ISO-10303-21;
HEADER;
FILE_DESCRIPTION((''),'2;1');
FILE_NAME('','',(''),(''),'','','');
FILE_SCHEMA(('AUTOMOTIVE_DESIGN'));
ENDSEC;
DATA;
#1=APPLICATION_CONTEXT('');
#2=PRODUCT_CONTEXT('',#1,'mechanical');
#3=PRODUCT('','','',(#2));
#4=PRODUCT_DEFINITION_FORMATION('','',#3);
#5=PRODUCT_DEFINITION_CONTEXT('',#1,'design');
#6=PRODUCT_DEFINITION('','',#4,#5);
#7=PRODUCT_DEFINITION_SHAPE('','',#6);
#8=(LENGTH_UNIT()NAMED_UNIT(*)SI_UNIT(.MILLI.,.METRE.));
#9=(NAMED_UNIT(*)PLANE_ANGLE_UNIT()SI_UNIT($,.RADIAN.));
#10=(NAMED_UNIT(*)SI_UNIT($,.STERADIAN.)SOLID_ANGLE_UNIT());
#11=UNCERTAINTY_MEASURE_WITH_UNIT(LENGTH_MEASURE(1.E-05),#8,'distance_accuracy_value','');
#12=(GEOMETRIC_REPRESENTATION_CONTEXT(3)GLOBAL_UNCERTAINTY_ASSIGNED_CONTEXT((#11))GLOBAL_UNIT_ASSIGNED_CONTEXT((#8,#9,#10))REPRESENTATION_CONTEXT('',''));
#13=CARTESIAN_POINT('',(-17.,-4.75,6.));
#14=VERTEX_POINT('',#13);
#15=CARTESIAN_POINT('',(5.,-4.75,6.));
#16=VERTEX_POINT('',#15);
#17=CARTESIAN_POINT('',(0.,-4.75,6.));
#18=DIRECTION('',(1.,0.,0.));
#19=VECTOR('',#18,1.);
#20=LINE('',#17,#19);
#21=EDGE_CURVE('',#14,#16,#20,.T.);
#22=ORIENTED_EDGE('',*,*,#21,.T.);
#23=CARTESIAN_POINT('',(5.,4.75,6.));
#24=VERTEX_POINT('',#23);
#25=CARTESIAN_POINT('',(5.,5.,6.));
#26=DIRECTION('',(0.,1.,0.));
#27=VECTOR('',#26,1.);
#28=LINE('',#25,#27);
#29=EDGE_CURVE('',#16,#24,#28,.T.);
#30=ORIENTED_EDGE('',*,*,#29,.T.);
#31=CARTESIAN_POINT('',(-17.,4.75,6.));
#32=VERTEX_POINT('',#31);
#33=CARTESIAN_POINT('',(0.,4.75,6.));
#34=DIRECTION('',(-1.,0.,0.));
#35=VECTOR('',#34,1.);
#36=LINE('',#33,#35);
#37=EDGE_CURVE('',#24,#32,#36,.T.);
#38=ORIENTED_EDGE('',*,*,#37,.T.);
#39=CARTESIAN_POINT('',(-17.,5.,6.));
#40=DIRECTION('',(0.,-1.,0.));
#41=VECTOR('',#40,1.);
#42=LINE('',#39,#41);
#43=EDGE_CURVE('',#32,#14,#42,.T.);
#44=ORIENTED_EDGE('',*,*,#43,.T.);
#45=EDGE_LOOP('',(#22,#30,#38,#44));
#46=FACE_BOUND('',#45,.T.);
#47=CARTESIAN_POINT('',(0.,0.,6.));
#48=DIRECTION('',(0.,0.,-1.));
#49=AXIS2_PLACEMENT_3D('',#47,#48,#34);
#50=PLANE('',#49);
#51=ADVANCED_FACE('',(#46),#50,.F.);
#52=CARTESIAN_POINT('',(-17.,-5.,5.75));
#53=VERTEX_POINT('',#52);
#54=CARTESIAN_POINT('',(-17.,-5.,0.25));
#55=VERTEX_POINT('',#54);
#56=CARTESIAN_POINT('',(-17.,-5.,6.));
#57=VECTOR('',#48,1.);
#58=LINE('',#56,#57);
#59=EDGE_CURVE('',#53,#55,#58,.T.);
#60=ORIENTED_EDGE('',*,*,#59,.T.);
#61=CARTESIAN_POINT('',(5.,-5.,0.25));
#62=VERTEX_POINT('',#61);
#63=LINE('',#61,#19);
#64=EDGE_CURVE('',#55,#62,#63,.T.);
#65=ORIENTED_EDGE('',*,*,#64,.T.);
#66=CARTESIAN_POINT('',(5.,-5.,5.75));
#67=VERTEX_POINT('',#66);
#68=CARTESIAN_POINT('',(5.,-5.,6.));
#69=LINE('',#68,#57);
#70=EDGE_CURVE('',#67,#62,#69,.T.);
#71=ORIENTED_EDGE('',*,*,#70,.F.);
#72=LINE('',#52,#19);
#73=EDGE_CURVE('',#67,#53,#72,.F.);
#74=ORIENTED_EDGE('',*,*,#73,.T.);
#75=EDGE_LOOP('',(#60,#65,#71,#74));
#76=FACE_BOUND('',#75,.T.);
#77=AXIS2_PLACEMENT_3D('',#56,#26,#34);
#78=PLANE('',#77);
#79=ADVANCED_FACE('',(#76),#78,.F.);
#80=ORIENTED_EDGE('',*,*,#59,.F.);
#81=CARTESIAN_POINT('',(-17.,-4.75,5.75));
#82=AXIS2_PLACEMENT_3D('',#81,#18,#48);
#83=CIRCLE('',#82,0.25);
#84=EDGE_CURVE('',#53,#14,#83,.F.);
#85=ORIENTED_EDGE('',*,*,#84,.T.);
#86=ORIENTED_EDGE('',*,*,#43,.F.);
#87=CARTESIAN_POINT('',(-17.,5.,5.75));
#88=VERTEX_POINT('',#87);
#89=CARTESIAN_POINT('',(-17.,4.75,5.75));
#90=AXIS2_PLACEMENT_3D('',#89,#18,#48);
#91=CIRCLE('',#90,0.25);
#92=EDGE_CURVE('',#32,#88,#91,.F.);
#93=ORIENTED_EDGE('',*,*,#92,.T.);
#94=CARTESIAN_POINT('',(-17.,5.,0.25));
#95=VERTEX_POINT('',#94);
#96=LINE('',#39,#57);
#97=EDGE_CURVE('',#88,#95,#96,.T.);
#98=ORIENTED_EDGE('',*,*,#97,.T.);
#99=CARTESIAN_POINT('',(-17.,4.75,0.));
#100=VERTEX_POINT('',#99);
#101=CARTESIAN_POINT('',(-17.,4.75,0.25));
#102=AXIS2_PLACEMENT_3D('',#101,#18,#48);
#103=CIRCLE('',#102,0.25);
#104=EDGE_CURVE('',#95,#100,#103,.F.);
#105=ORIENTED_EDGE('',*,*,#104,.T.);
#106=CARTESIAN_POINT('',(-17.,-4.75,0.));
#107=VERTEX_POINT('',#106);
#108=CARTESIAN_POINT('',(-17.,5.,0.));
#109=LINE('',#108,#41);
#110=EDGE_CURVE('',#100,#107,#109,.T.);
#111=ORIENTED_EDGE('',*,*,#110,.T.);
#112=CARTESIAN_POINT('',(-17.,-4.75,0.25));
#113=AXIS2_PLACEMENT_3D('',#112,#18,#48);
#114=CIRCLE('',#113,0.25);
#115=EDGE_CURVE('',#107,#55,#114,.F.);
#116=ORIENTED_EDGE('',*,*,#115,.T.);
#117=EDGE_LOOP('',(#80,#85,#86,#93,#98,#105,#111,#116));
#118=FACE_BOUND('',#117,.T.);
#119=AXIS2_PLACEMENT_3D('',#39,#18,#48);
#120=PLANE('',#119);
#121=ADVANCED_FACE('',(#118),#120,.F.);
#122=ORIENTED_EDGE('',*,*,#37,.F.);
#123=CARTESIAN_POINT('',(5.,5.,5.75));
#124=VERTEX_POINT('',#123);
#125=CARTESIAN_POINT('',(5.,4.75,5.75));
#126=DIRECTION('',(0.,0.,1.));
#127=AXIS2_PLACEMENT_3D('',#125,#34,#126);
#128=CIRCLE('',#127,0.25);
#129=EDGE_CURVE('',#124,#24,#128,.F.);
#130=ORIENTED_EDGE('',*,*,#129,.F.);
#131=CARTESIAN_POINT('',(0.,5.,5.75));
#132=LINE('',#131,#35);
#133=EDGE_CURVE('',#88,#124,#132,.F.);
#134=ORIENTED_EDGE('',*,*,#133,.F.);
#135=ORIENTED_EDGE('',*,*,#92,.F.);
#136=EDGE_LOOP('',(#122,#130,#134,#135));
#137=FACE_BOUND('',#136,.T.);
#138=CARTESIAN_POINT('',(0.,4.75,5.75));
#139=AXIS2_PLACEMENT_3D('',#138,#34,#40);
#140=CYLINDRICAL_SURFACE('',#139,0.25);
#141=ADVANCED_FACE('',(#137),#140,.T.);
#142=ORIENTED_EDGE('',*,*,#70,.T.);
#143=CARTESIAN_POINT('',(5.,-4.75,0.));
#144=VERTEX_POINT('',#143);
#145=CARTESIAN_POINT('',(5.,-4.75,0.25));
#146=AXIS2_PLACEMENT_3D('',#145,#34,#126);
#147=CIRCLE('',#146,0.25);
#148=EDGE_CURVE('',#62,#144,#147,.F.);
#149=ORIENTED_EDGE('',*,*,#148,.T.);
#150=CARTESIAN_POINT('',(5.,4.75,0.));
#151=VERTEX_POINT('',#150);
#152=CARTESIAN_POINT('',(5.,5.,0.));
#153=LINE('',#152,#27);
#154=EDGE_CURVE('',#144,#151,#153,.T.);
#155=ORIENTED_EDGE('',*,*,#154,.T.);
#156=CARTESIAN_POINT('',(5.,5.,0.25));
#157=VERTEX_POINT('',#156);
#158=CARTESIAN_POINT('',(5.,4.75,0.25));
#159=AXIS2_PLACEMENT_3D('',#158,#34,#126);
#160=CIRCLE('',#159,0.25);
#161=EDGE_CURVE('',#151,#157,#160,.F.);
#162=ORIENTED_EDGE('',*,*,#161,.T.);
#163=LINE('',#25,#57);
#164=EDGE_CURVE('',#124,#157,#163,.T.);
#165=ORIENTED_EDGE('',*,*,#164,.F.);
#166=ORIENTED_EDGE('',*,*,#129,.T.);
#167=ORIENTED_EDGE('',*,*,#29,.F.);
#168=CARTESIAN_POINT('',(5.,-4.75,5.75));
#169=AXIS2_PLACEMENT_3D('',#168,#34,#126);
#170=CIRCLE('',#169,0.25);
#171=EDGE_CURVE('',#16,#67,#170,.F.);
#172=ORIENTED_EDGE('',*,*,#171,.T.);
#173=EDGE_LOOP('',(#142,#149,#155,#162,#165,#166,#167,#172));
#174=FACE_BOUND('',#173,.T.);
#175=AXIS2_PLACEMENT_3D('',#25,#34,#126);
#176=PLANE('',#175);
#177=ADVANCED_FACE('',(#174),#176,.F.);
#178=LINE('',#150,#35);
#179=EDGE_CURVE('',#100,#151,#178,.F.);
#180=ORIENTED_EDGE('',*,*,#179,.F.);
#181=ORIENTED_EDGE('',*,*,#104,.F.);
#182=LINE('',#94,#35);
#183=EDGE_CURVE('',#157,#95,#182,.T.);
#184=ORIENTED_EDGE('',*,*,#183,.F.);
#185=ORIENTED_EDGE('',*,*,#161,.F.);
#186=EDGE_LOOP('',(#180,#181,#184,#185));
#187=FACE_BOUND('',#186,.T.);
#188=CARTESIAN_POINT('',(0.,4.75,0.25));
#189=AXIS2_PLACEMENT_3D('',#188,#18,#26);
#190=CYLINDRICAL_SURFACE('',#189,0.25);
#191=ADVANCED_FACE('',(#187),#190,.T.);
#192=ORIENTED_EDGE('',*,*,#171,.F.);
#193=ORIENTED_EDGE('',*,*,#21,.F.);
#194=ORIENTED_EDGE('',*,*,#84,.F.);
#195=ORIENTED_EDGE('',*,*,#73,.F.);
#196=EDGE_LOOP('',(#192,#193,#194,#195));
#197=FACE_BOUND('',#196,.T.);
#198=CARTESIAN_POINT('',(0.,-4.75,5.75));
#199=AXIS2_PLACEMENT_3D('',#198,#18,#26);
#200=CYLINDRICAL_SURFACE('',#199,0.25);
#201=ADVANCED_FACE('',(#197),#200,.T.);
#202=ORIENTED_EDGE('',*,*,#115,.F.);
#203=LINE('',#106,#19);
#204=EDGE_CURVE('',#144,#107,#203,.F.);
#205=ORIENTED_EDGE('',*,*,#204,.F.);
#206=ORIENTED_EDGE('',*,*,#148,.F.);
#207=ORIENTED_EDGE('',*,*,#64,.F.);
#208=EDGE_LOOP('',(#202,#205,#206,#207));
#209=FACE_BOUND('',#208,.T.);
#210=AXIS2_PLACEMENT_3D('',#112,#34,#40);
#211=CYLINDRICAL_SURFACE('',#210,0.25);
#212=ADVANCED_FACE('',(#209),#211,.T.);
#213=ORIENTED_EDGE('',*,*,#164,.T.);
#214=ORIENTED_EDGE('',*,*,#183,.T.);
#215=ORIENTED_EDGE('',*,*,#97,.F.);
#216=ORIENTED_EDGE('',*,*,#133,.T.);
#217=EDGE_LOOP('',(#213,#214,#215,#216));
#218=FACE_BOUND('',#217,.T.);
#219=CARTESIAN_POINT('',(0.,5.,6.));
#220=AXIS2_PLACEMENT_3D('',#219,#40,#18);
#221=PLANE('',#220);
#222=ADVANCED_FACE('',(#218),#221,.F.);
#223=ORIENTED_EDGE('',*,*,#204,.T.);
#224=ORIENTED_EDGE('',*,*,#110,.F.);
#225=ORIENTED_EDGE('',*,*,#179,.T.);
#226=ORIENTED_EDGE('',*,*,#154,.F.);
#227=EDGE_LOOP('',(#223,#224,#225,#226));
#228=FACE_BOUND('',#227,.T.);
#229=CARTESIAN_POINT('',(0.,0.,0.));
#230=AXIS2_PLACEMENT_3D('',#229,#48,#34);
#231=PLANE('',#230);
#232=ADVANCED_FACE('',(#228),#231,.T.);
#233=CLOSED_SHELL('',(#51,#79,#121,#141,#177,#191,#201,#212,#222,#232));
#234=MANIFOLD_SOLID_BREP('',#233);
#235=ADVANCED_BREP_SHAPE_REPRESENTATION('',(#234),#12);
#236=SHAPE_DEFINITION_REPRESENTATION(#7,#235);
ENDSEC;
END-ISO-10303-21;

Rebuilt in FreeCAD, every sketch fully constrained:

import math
import FreeCAD as App
import Part
import Sketcher
from FreeCAD import Vector
Q = App.Units.Quantity


def edges_at(feature, points):
    """Names of the edges that pass closest to the given points."""
    edges = feature.Shape.Edges
    near = lambda p: min(range(len(edges)), key=lambda i: edges[i].distToShape(Part.Vertex(*p))[0])
    return sorted({f"Edge{near(p) + 1}" for p in points})


def add_polygon(sketch, points):
    """Adds a closed chain of lines whose ends are joined by coincident constraints."""
    first, n = sketch.GeometryCount, len(points)
    for a, b in zip(points, points[1:] + points[:1]):
        sketch.addGeometry(Part.LineSegment(App.Vector(*a, 0), App.Vector(*b, 0)), False)
    for i in range(n):
        sketch.addConstraint(Sketcher.Constraint("Coincident", first + i, 2, first + (i + 1) % n, 1))

doc = App.newDocument("Part")
params = doc.addObject("Spreadsheet::Sheet", "Params")
for row, (alias, value) in enumerate([
    ("sketch1_radius", "5 mm"),
    ("sketch1_width", "17 mm"),
    ("pad1_length", "6 mm"),
    ("sketch2_width", "22 mm"),
    ("sketch2_height", "10 mm"),
    ("pad2_length", "6 mm"),
    ("fillet_radius", "0.25 mm"),
], start=1):
    params.set(f"A{row}", alias)
    params.set(f"B{row}", "=" + value)
    params.setAlias(f"B{row}", alias)

body = doc.addObject("PartDesign::Body", "Body")

sketch1 = body.newObject("Sketcher::SketchObject", "Sketch")
sketch1.AttachmentSupport = (doc.getObject("XY_Plane"), [""])
sketch1.MapMode = "FlatFace"
sketch1.addGeometry([
    Part.LineSegment(Vector(0, 5, 0), Vector(-17, 5, 0)),
    Part.LineSegment(Vector(-17, 5, 0), Vector(-17, -5, 0)),
    Part.LineSegment(Vector(-17, -5, 0), Vector(0, -5, 0)),
    Part.ArcOfCircle(Part.Circle(Vector(0, 0, 0), Vector(0, 0, 1), 5), math.radians(-90), math.radians(90)),
], False)
sketch1.addConstraint([
    Sketcher.Constraint("Coincident", 0, 2, 1, 1),
    Sketcher.Constraint("Coincident", 1, 2, 2, 1),
    Sketcher.Constraint("Tangent", 2, 2, 3, 1),
    Sketcher.Constraint("Tangent", 3, 2, 0, 1),
    Sketcher.Constraint("Horizontal", 0),
    Sketcher.Constraint("Vertical", 1),
    Sketcher.Constraint("Horizontal", 2),
    Sketcher.Constraint("Coincident", 3, 3, -1, 1),
    Sketcher.Constraint("Radius", 3, Q("5 mm")),
    Sketcher.Constraint("DistanceX", 0, 2, 0, 1, Q("17 mm")),
])
sketch1.setExpression("Constraints[8]", "Params.sketch1_radius")
sketch1.setExpression("Constraints[9]", "Params.sketch1_width")
pad1 = body.newObject("PartDesign::Pad", "Pad")
pad1.Profile = sketch1
pad1.setExpression("Length", "Params.pad1_length")

sketch2 = body.newObject("Sketcher::SketchObject", "Sketch001")
sketch2.AttachmentSupport = (doc.getObject("XY_Plane"), [""])
sketch2.MapMode = "FlatFace"
add_polygon(sketch2, [(-17, 5), (-17, -5), (5, -5), (5, 5)])
sketch2.addConstraint([
    Sketcher.Constraint("Vertical", 0),
    Sketcher.Constraint("Horizontal", 1),
    Sketcher.Constraint("Vertical", 2),
    Sketcher.Constraint("Horizontal", 3),
    Sketcher.Constraint("DistanceX", 1, 1, 1, 2, Q("22 mm")),
    Sketcher.Constraint("DistanceY", 0, 2, 0, 1, Q("10 mm")),
    Sketcher.Constraint("DistanceX", 0, 2, -1, 1, Q("17 mm")),
    Sketcher.Constraint("DistanceY", 0, 2, -1, 1, Q("5 mm")),
])
sketch2.setExpression("Constraints[8]", "Params.sketch2_width")
sketch2.setExpression("Constraints[9]", "Params.sketch2_height")
pad2 = body.newObject("PartDesign::Pad", "Pad001")
pad2.Profile = sketch2
pad2.setExpression("Length", "Params.pad2_length")
doc.recompute()

fillet = body.newObject("PartDesign::Fillet", "Fillet")
fillet.Base = (pad2, edges_at(pad2, [
    (-6, -5, 6),
    (-6, -5, 0),
    (-6, 5, 0),
    (-6, 5, 6),
]))
fillet.setExpression("Radius", "Params.fillet_radius")

doc.recompute()
